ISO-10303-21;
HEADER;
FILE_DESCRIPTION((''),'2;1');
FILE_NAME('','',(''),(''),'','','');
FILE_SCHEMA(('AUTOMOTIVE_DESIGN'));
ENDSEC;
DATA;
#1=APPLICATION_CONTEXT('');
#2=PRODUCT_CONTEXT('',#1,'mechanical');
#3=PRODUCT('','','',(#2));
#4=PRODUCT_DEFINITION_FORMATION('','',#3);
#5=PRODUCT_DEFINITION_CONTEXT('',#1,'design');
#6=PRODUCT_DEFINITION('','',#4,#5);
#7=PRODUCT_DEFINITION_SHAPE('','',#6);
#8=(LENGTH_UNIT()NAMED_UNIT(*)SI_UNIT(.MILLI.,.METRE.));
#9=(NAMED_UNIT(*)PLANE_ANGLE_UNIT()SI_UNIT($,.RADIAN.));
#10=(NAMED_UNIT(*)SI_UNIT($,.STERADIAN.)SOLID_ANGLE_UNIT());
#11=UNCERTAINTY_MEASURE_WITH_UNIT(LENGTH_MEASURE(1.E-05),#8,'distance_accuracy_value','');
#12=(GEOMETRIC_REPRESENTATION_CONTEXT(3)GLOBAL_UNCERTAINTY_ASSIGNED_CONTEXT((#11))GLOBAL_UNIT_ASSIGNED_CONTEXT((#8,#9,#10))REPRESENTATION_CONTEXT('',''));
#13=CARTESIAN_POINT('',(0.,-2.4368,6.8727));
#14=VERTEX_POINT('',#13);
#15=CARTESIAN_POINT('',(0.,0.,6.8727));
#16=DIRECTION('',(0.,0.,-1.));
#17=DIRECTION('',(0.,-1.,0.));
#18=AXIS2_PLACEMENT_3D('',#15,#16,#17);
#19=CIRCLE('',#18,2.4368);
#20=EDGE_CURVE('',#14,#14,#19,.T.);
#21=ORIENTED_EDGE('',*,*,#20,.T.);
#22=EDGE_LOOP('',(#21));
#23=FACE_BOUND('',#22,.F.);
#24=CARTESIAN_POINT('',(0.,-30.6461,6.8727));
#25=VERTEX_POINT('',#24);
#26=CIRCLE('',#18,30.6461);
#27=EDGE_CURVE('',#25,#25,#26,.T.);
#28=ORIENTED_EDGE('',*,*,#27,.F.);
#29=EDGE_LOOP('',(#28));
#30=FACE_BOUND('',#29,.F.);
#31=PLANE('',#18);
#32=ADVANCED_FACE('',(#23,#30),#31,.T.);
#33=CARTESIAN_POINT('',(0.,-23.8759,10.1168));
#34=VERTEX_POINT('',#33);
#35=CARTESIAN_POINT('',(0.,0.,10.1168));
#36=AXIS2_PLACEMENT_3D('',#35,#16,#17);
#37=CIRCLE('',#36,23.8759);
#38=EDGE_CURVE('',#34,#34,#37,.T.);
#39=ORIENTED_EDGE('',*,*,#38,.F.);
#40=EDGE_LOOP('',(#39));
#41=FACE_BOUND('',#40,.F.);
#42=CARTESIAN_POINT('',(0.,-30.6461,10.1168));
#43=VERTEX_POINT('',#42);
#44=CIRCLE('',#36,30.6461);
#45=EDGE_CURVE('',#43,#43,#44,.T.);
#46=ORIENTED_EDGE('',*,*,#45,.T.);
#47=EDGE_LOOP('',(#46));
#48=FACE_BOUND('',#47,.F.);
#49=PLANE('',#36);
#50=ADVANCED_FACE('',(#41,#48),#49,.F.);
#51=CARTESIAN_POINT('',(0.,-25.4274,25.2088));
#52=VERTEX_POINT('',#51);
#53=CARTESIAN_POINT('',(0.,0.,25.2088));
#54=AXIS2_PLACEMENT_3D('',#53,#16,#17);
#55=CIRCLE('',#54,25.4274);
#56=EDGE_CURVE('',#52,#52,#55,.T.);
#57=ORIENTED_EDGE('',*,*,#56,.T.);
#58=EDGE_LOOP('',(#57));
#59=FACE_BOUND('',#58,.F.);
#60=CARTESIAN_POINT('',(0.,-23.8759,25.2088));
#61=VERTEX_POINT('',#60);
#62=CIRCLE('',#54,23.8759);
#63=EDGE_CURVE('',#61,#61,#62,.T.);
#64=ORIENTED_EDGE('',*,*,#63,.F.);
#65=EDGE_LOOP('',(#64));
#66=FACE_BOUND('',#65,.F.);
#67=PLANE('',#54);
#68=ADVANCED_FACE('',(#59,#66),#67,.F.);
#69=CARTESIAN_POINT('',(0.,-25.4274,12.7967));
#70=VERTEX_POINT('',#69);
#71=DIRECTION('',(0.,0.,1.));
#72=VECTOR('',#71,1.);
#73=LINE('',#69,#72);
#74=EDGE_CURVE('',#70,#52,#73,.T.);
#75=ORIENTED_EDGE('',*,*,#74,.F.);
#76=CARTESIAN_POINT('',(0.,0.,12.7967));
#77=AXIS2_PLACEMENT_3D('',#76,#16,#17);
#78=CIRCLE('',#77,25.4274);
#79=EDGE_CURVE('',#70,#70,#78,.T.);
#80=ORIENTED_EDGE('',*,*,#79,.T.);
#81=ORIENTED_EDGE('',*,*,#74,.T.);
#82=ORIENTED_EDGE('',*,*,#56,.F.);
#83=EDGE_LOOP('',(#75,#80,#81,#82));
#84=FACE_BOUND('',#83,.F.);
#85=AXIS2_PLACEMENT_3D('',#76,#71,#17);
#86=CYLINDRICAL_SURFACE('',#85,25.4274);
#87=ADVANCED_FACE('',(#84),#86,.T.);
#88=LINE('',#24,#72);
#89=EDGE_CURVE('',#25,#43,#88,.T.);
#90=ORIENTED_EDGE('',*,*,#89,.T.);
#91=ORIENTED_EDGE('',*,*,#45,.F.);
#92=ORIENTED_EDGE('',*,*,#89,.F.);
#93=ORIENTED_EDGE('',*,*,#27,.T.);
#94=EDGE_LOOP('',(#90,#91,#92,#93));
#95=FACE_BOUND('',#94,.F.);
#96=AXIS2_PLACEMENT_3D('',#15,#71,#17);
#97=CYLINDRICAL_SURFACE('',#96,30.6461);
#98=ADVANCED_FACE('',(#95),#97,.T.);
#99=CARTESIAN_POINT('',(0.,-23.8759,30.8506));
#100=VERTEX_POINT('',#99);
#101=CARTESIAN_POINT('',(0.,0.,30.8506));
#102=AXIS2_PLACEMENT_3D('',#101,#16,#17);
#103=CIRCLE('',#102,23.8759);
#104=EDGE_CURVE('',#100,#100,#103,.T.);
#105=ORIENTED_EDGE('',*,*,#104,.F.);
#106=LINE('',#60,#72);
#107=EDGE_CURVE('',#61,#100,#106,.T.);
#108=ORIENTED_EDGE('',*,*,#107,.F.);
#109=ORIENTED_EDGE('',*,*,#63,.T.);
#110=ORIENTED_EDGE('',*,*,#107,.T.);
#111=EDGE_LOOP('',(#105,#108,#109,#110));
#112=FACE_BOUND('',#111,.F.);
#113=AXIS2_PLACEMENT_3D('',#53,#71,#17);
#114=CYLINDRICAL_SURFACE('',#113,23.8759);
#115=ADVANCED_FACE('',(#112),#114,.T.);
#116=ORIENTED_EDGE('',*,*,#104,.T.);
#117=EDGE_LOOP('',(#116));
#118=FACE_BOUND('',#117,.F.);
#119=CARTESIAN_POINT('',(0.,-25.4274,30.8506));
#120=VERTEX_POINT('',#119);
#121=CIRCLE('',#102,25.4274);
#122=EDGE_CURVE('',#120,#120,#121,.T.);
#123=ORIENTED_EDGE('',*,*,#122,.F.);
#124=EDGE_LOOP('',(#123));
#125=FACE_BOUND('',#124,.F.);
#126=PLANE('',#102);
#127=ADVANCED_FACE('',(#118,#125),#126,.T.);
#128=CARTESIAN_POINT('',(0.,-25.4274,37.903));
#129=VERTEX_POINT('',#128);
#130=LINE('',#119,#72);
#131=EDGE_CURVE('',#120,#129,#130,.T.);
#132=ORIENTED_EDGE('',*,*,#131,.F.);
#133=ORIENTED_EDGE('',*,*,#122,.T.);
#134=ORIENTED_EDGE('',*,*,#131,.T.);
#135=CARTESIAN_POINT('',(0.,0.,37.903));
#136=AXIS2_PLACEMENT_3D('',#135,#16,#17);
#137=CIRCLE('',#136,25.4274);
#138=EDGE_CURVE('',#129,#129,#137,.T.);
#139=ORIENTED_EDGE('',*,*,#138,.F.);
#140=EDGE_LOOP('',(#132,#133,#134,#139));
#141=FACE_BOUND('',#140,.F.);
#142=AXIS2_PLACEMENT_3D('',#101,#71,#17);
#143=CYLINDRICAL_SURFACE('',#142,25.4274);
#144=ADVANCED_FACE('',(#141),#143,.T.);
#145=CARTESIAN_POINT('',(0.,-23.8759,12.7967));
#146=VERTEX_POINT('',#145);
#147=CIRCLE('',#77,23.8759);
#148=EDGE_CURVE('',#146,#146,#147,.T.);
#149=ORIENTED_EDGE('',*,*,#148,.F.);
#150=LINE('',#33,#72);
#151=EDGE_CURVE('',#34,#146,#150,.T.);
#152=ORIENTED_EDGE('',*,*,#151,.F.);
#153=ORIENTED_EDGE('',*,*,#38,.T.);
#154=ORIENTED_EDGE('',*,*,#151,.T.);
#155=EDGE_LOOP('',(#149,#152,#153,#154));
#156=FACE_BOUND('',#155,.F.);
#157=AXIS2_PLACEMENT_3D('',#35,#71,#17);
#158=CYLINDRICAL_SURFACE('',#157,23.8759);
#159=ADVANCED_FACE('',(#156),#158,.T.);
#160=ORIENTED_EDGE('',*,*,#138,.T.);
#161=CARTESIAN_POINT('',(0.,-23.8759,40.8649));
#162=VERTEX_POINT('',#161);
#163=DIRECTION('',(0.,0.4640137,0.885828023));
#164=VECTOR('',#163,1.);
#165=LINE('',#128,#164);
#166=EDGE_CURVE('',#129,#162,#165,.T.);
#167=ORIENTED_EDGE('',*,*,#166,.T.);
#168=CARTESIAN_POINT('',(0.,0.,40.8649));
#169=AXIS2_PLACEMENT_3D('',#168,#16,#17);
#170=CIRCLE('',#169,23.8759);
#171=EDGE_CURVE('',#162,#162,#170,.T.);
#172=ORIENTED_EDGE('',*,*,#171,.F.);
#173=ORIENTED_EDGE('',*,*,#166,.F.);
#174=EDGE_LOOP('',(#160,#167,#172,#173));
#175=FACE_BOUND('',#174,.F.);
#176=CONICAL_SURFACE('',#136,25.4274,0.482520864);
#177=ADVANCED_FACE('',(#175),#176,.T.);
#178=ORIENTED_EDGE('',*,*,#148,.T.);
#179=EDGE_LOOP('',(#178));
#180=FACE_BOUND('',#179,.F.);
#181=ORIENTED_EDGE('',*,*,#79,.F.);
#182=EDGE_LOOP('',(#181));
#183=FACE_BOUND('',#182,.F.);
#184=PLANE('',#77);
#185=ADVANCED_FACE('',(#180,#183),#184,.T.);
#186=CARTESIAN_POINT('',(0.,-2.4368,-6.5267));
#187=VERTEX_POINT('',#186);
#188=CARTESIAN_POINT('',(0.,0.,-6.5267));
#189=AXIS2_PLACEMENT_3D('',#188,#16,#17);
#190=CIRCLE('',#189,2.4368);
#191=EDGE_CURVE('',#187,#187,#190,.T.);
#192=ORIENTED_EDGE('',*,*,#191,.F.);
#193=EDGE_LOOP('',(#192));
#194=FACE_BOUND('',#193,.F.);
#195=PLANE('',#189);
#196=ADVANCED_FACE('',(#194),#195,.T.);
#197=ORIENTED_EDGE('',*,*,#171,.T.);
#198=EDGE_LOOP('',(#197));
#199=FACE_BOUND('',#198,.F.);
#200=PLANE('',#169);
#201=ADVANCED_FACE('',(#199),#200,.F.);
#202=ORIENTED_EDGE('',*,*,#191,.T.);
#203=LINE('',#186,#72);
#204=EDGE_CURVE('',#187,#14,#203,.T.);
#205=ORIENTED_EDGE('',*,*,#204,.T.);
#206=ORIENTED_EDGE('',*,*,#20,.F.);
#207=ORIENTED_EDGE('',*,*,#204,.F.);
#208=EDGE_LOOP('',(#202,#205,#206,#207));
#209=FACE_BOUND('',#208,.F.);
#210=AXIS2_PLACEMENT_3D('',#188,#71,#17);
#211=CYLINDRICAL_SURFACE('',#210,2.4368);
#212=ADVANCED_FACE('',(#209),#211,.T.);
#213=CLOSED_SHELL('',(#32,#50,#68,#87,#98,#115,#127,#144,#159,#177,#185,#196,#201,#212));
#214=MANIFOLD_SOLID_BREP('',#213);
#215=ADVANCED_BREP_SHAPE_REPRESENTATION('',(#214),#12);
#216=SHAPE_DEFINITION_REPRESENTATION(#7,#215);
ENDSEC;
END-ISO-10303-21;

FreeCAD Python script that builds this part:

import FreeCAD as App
import Part
import Sketcher
from FreeCAD import Vector
Q = App.Units.Quantity

doc = App.newDocument("Part")
body = doc.addObject("PartDesign::Body", "Body")

sketch1 = body.newObject("Sketcher::SketchObject", "Sketch")
sketch1.AttachmentSupport = (doc.getObject("YZ_Plane"), [""])
sketch1.MapMode = "FlatFace"
sketch1.addGeometry([
    Part.LineSegment(Vector(-2.4, 6.9, 0), Vector(-2.4, -6.5, 0)),
    Part.LineSegment(Vector(-2.4, -6.5, 0), Vector(0, -6.5, 0)),
    Part.LineSegment(Vector(0, -6.5, 0), Vector(0, 40.9, 0)),
    Part.LineSegment(Vector(0, 40.9, 0), Vector(-23.9, 40.9, 0)),
    Part.LineSegment(Vector(-23.9, 40.9, 0), Vector(-25.4, 37.9, 0)),
    Part.LineSegment(Vector(-25.4, 37.9, 0), Vector(-25.4, 30.9, 0)),
    Part.LineSegment(Vector(-25.4, 30.9, 0), Vector(-23.9, 30.9, 0)),
    Part.LineSegment(Vector(-23.9, 30.9, 0), Vector(-23.9, 25.2, 0)),
    Part.LineSegment(Vector(-23.9, 25.2, 0), Vector(-25.4, 25.2, 0)),
    Part.LineSegment(Vector(-25.4, 25.2, 0), Vector(-25.4, 12.8, 0)),
    Part.LineSegment(Vector(-25.4, 12.8, 0), Vector(-23.9, 12.8, 0)),
    Part.LineSegment(Vector(-23.9, 12.8, 0), Vector(-23.9, 10.1, 0)),
    Part.LineSegment(Vector(-23.9, 10.1, 0), Vector(-30.6, 10.1, 0)),
    Part.LineSegment(Vector(-30.6, 10.1, 0), Vector(-30.6, 6.9, 0)),
    Part.LineSegment(Vector(-30.6, 6.9, 0), Vector(-2.4, 6.9, 0)),
], False)
sketch1.addConstraint([
    Sketcher.Constraint("Coincident", 0, 2, 1, 1),
    Sketcher.Constraint("Coincident", 1, 2, 2, 1),
    Sketcher.Constraint("Coincident", 2, 2, 3, 1),
    Sketcher.Constraint("Coincident", 3, 2, 4, 1),
    Sketcher.Constraint("Coincident", 4, 2, 5, 1),
    Sketcher.Constraint("Coincident", 5, 2, 6, 1),
    Sketcher.Constraint("Coincident", 6, 2, 7, 1),
    Sketcher.Constraint("Coincident", 7, 2, 8, 1),
    Sketcher.Constraint("Coincident", 8, 2, 9, 1),
    Sketcher.Constraint("Coincident", 9, 2, 10, 1),
    Sketcher.Constraint("Coincident", 10, 2, 11, 1),
    Sketcher.Constraint("Coincident", 11, 2, 12, 1),
    Sketcher.Constraint("Coincident", 12, 2, 13, 1),
    Sketcher.Constraint("Coincident", 13, 2, 14, 1),
    Sketcher.Constraint("Coincident", 14, 2, 0, 1),
    Sketcher.Constraint("Vertical", 0),
    Sketcher.Constraint("Horizontal", 1),
    Sketcher.Constraint("Vertical", 2),
    Sketcher.Constraint("Horizontal", 3),
    Sketcher.Constraint("Vertical", 5),
    Sketcher.Constraint("Horizontal", 6),
    Sketcher.Constraint("Vertical", 7),
    Sketcher.Constraint("Horizontal", 8),
    Sketcher.Constraint("Vertical", 9),
    Sketcher.Constraint("Horizontal", 10),
    Sketcher.Constraint("Vertical", 11),
    Sketcher.Constraint("Horizontal", 12),
    Sketcher.Constraint("Vertical", 13),
    Sketcher.Constraint("Horizontal", 14),
    Sketcher.Constraint("PointOnObject", 1, 2, -2),
    Sketcher.Constraint("Vertical", 3, 2, 6, 2),
    Sketcher.Constraint("Vertical", 5, 2, 8, 2),
    Sketcher.Constraint("Vertical", 7, 2, 10, 2),
    Sketcher.Constraint("DistanceX", 3, 2, 3, 1, Q("0.94 in")),
    Sketcher.Constraint("DistanceX", 14, 1, 14, 2, Q("1.1106 in")),
    Sketcher.Constraint("DistanceY", 2, 1, 2, 2, Q("1.8658 in")),
    Sketcher.Constraint("DistanceY", 11, 2, 11, 1, Q("0.1055 in")),
    Sketcher.Constraint("DistanceX", 1, 1, 1, 2, Q("2.4368 mm")),
    Sketcher.Constraint("DistanceX", 6, 1, 6, 2, Q("1.5515 mm")),
    Sketcher.Constraint("DistanceY", 0, 2, 0, 1, Q("13.3994 mm")),
    Sketcher.Constraint("DistanceY", 5, 2, 5, 1, Q("7.0524 mm")),
    Sketcher.Constraint("DistanceY", 7, 2, 7, 1, Q("5.6418 mm")),
    Sketcher.Constraint("DistanceY", 9, 2, 9, 1, Q("12.412 mm")),
    Sketcher.Constraint("DistanceY", 13, 2, 13, 1, Q("3.244 mm")),
    Sketcher.Constraint("DistanceY", -1, 1, 5, 2, Q("1.2146 in")),
])
revolution = body.newObject("PartDesign::Revolution", "Revolution")
revolution.Profile = sketch1
revolution.ReferenceAxis = (sketch1, ["V_Axis"])
revolution.Angle = 360

doc.recompute()
